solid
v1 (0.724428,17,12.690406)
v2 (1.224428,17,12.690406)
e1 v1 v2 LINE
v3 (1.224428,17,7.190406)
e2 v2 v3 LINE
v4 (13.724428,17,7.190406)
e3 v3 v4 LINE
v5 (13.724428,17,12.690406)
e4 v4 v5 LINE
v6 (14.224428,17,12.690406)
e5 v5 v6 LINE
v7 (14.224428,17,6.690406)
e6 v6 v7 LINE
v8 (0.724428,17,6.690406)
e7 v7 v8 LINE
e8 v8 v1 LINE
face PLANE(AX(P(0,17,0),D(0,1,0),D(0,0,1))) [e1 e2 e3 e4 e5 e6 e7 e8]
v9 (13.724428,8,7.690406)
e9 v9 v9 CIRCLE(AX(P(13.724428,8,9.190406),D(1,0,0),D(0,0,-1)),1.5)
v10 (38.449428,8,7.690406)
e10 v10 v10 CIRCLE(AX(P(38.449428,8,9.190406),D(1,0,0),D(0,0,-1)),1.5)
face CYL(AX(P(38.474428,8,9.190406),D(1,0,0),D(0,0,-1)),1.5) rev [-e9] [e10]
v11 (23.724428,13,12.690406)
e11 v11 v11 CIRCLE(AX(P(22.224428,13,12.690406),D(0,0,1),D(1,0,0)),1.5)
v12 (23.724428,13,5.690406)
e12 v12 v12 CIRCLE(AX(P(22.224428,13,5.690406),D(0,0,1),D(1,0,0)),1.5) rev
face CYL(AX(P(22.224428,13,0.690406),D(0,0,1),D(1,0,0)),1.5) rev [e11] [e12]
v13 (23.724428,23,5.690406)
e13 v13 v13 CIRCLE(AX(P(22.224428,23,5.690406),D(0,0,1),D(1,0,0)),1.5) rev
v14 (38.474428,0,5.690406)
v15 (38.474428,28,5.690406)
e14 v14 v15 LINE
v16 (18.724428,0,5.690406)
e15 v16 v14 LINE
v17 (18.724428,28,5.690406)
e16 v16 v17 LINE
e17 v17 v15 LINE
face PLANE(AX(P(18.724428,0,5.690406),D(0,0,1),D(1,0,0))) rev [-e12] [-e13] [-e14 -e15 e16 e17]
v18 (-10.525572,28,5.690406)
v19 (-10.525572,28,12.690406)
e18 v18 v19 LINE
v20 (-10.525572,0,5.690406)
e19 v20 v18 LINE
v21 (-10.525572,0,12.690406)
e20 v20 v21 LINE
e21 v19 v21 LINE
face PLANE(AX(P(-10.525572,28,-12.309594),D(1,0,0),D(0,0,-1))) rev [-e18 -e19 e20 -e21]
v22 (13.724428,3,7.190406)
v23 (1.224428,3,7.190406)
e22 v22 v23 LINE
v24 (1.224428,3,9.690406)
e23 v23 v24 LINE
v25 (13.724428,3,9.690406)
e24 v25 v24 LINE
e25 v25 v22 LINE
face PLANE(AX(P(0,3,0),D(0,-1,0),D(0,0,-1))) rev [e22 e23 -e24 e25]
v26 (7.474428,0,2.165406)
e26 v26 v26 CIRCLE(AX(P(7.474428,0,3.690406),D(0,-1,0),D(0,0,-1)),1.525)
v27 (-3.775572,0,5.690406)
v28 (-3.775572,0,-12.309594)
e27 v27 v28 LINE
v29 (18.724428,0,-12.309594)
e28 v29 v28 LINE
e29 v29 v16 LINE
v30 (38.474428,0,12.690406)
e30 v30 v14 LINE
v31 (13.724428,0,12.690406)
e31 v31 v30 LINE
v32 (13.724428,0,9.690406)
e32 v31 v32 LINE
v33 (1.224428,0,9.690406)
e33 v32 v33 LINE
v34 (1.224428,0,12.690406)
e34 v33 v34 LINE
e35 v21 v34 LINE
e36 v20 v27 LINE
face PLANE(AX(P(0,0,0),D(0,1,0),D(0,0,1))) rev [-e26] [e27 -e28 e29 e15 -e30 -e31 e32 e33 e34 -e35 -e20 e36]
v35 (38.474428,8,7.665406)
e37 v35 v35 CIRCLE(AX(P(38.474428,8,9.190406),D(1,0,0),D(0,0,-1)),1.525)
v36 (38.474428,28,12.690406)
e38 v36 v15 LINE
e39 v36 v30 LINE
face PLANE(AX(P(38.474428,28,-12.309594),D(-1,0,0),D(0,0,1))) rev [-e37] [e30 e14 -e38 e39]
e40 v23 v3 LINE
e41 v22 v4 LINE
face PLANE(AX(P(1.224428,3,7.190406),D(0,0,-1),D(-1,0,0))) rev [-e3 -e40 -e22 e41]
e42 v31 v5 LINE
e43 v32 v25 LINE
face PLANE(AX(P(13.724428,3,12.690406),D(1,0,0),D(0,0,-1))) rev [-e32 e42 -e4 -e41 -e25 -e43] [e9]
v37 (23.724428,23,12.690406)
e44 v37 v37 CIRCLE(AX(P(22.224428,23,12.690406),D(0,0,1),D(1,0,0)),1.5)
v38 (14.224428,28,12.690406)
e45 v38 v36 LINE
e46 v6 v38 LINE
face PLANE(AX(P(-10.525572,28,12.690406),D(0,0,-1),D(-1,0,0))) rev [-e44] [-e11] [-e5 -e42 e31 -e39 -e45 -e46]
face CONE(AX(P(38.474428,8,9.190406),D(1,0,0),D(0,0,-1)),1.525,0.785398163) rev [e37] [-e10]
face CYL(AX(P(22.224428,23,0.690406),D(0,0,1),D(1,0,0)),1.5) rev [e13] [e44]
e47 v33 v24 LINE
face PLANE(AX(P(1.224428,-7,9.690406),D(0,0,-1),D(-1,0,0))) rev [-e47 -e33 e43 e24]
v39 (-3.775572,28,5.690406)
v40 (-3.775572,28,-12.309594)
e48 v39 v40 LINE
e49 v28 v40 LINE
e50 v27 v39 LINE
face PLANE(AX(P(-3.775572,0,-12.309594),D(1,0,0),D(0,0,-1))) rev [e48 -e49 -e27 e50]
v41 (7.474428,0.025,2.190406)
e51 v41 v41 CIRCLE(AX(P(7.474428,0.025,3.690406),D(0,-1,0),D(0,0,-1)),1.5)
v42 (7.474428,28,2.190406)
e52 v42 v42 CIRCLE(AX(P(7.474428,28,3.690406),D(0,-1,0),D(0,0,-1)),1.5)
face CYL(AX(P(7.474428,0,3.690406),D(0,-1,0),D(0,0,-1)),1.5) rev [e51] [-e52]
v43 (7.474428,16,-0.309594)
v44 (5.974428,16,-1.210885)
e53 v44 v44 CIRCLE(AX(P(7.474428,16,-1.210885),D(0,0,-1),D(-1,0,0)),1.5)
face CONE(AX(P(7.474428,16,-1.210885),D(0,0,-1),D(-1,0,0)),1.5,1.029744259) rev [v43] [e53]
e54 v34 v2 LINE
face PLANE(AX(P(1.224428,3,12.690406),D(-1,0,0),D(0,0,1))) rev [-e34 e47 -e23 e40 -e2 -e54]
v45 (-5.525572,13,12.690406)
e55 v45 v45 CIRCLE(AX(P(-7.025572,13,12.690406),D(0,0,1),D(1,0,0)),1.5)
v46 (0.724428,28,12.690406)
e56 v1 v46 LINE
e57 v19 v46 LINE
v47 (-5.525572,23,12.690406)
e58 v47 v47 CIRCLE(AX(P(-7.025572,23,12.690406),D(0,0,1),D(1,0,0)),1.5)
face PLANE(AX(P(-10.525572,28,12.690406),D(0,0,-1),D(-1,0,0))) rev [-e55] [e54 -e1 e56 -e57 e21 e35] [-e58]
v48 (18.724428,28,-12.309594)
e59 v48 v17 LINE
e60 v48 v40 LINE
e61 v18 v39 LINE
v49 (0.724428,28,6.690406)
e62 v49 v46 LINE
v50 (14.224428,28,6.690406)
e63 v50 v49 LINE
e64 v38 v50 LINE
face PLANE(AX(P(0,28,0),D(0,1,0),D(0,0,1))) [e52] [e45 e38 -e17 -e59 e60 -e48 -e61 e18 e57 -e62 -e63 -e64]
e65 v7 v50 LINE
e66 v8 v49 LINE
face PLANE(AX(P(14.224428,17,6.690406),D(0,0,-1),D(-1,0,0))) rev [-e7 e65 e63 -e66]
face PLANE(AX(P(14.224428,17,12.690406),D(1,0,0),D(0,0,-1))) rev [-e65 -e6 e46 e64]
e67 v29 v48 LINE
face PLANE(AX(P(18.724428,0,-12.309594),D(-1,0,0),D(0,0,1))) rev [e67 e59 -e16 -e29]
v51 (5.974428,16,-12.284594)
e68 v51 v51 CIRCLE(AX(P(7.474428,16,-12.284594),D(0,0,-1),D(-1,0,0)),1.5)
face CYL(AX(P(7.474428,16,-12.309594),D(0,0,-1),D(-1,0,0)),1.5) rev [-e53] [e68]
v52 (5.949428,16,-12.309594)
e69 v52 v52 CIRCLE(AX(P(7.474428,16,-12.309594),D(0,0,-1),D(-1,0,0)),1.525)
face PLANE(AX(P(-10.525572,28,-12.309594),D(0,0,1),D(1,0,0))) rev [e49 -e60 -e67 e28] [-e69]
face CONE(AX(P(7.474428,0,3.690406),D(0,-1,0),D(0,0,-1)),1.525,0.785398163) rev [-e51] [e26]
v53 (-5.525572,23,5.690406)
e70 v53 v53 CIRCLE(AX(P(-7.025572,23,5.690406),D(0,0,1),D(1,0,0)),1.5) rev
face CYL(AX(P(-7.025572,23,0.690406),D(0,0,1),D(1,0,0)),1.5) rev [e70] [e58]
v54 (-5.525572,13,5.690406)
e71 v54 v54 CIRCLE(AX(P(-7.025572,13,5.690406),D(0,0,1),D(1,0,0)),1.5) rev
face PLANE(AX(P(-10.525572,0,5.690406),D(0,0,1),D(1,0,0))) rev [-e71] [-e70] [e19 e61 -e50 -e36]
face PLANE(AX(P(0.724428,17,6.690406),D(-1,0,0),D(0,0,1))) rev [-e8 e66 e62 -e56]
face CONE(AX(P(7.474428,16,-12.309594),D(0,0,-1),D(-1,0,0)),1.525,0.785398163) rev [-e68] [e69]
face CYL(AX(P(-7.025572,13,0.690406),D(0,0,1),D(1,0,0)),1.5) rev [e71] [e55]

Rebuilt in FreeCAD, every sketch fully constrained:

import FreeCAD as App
import Part
import Sketcher
from FreeCAD import Vector
Q = App.Units.Quantity


def add_polygon(sketch, points):
    """Adds a closed chain of lines whose ends are joined by coincident constraints."""
    first, n = sketch.GeometryCount, len(points)
    for a, b in zip(points, points[1:] + points[:1]):
        sketch.addGeometry(Part.LineSegment(App.Vector(*a, 0), App.Vector(*b, 0)), False)
    for i in range(n):
        sketch.addConstraint(Sketcher.Constraint("Coincident", first + i, 2, first + (i + 1) % n, 1))

doc = App.newDocument("Part")
params = doc.addObject("Spreadsheet::Sheet", "Params")
for row, (alias, value) in enumerate([
    ("sketch1_width", "49 mm"),
    ("sketch1_height", "25 mm"),
    ("pad1_length", "28 mm"),
    ("sketch2_width", "12.5 mm"),
    ("sketch2_height", "5.5 mm"),
    ("pocket1_length", "25 mm"),
    ("sketch3_diameter", "3 mm"),
    ("hole_diameter", "3 mm"),
    ("hole_depth", "11.098709 mm"),
    ("hole_csink_diameter", "3.05 mm"),
    ("sketch4_diameter", "3 mm"),
    ("hole2_diameter", "3 mm"),
    ("hole2_depth", "24.75 mm"),
    ("hole2_csink_diameter", "3.05 mm"),
    ("sketch5_diameter", "3 mm"),
    ("hole3_diameter", "3 mm"),
    ("hole3_csink_diameter", "3.05 mm"),
    ("sketch6_diameter", "3 mm"),
    ("pocket2_length", "12 mm"),
    ("sketch7_height", "18 mm"),
    ("sketch7_width", "6.75 mm"),
    ("sketch7_width2", "19.75 mm"),
    ("pocket3_length", "28 mm"),
    ("sketch8_height", "3 mm"),
    ("sketch8_width", "12.5 mm"),
    ("pocket4_length", "10 mm"),
    ("sketch9_height", "6 mm"),
    ("sketch9_width", "13.5 mm"),
    ("sketch9_width2", "0.5 mm"),
    ("sketch9_height2", "5.5 mm"),
    ("pocket5_length", "11 mm"),
], start=1):
    params.set(f"A{row}", alias)
    params.set(f"B{row}", "=" + value)
    params.setAlias(f"B{row}", alias)

body = doc.addObject("PartDesign::Body", "Body")

# Sketch on XZ plane
sketch1 = doc.addObject("Sketcher::SketchObject", "Sketch")
body.addObject(sketch1)
sketch1.AttachmentSupport = (doc.XZ_Plane, [""])
sketch1.MapMode = "FlatFace"
add_polygon(sketch1, [(-10.525572, -12.309594), (-10.525572, 12.690406), (38.474428, 12.690406), (38.474428, -12.309594)])  # lines 0-3
sketch1.addConstraint([
    Sketcher.Constraint("Vertical", 0),
    Sketcher.Constraint("Horizontal", 1),
    Sketcher.Constraint("Vertical", 2),
    Sketcher.Constraint("Horizontal", 3),
    Sketcher.Constraint("DistanceX", 1, 1, 1, 2, Q("49 mm")),
    Sketcher.Constraint("DistanceY", 0, 1, 0, 2, Q("25 mm")),
    Sketcher.Constraint("DistanceX", 0, 2, -1, 1, Q("10.525572 mm")),
    Sketcher.Constraint("DistanceY", -1, 1, 0, 2, Q("12.690406 mm")),
])
sketch1.setExpression("Constraints[8]", "Params.sketch1_width")
sketch1.setExpression("Constraints[9]", "Params.sketch1_height")
pad1 = doc.addObject("PartDesign::Pad", "Pad")
body.addObject(pad1)
pad1.Profile = sketch1
pad1.setExpression("Length", "Params.pad1_length")
pad1.Reversed = True

# Sketch on XZ plane
sketch2 = doc.addObject("Sketcher::SketchObject", "Sketch001")
body.addObject(sketch2)
sketch2.AttachmentSupport = (doc.XZ_Plane, [""])
sketch2.MapMode = "FlatFace"
sketch2.AttachmentOffset = App.Placement(Vector(0, 0, -28), App.Rotation())
add_polygon(sketch2, [(1.224428, 7.190406), (1.224428, 12.690406), (13.724428, 12.690406), (13.724428, 7.190406)])  # lines 0-3
sketch2.addConstraint([
    Sketcher.Constraint("Vertical", 0),
    Sketcher.Constraint("Horizontal", 1),
    Sketcher.Constraint("Vertical", 2),
    Sketcher.Constraint("Horizontal", 3),
    Sketcher.Constraint("DistanceX", 1, 1, 1, 2, Q("12.5 mm")),
    Sketcher.Constraint("DistanceY", 0, 1, 0, 2, Q("5.5 mm")),
    Sketcher.Constraint("DistanceX", -1, 1, 0, 2, Q("1.224428 mm")),
    Sketcher.Constraint("DistanceY", -1, 1, 0, 2, Q("12.690406 mm")),
])
sketch2.setExpression("Constraints[8]", "Params.sketch2_width")
sketch2.setExpression("Constraints[9]", "Params.sketch2_height")
pocket1 = doc.addObject("PartDesign::Pocket", "Pocket")
body.addObject(pocket1)
pocket1.Profile = sketch2
pocket1.setExpression("Length", "Params.pocket1_length")
pocket1.Reversed = True

# Sketch on XY plane
sketch3 = doc.addObject("Sketcher::SketchObject", "Sketch002")
body.addObject(sketch3)
sketch3.AttachmentSupport = (doc.XY_Plane, [""])
sketch3.MapMode = "FlatFace"
sketch3.AttachmentOffset = App.Placement(Vector(0, 0, -12.309594), App.Rotation())
sketch3.addGeometry(Part.Circle(Vector(7.474428, 16, 0), Vector(0, 0, 1), 1.5), False)
sketch3.addConstraint([
    Sketcher.Constraint("Diameter", 0, Q("3 mm")),
    Sketcher.Constraint("DistanceY", -1, 1, 0, 3, Q("16 mm")),
    Sketcher.Constraint("DistanceX", -1, 1, 0, 3, Q("7.474428 mm")),
])
sketch3.setExpression("Constraints[0]", "Params.sketch3_diameter")
doc.recompute()
hole = doc.addObject("PartDesign::Hole", "Hole")
body.addObject(hole)
hole.Profile = sketch3
hole.ThreadType = "None"
hole.setExpression("Diameter", "Params.hole_diameter")
hole.DepthType = "Dimension"
hole.setExpression("Depth", "Params.hole_depth")
hole.DrillPoint = "Angled"
hole.DrillPointAngle = 118
hole.HoleCutType = "Countersink"
hole.setExpression("HoleCutDiameter", "Params.hole_csink_diameter")
hole.HoleCutCountersinkAngle = 90
hole.Reversed = True

# Sketch on YZ plane
sketch4 = doc.addObject("Sketcher::SketchObject", "Sketch003")
body.addObject(sketch4)
sketch4.AttachmentSupport = (doc.YZ_Plane, [""])
sketch4.MapMode = "FlatFace"
sketch4.AttachmentOffset = App.Placement(Vector(0, 0, 38.474428), App.Rotation())
sketch4.addGeometry(Part.Circle(Vector(8, 9.190406, 0), Vector(0, 0, 1), 1.5), False)
sketch4.addConstraint([
    Sketcher.Constraint("Diameter", 0, Q("3 mm")),
    Sketcher.Constraint("DistanceX", -1, 1, 0, 3, Q("8 mm")),
    Sketcher.Constraint("DistanceY", -1, 1, 0, 3, Q("9.190406 mm")),
])
sketch4.setExpression("Constraints[0]", "Params.sketch4_diameter")
doc.recompute()
hole2 = doc.addObject("PartDesign::Hole", "Hole001")
body.addObject(hole2)
hole2.Profile = sketch4
hole2.ThreadType = "None"
hole2.setExpression("Diameter", "Params.hole2_diameter")
hole2.DepthType = "Dimension"
hole2.setExpression("Depth", "Params.hole2_depth")
hole2.DrillPoint = "Flat"
hole2.HoleCutType = "Countersink"
hole2.setExpression("HoleCutDiameter", "Params.hole2_csink_diameter")
hole2.HoleCutCountersinkAngle = 90

# Sketch on XZ plane
sketch5 = doc.addObject("Sketcher::SketchObject", "Sketch004")
body.addObject(sketch5)
sketch5.AttachmentSupport = (doc.XZ_Plane, [""])
sketch5.MapMode = "FlatFace"
sketch5.addGeometry(Part.Circle(Vector(7.474428, 3.690406, 0), Vector(0, 0, 1), 1.5), False)
sketch5.addConstraint([
    Sketcher.Constraint("Diameter", 0, Q("3 mm")),
    Sketcher.Constraint("DistanceX", -1, 1, 0, 3, Q("7.474428 mm")),
    Sketcher.Constraint("DistanceY", -1, 1, 0, 3, Q("3.690406 mm")),
])
sketch5.setExpression("Constraints[0]", "Params.sketch5_diameter")
doc.recompute()
hole3 = doc.addObject("PartDesign::Hole", "Hole002")
body.addObject(hole3)
hole3.Profile = sketch5
hole3.ThreadType = "None"
hole3.setExpression("Diameter", "Params.hole3_diameter")
hole3.DepthType = "ThroughAll"
hole3.HoleCutType = "Countersink"
hole3.setExpression("HoleCutDiameter", "Params.hole3_csink_diameter")
hole3.HoleCutCountersinkAngle = 90

# Sketch on XY plane
sketch6 = doc.addObject("Sketcher::SketchObject", "Sketch005")
body.addObject(sketch6)
sketch6.AttachmentSupport = (doc.XY_Plane, [""])
sketch6.MapMode = "FlatFace"
sketch6.AttachmentOffset = App.Placement(Vector(0, 0, 12.690406), App.Rotation())
sketch6.addGeometry([
    Part.Circle(Vector(-7.025572, 23, 0), Vector(0, 0, 1), 1.5),
    Part.Circle(Vector(-7.025572, 13, 0), Vector(0, 0, 1), 1.5),
    Part.Circle(Vector(22.224428, 23, 0), Vector(0, 0, 1), 1.5),
    Part.Circle(Vector(22.224428, 13, 0), Vector(0, 0, 1), 1.5),
], False)
sketch6.addConstraint([
    Sketcher.Constraint("Equal", 0, 1),
    Sketcher.Constraint("Equal", 1, 2),
    Sketcher.Constraint("Equal", 2, 3),
    Sketcher.Constraint("Horizontal", 0, 3, 2, 3),
    Sketcher.Constraint("Horizontal", 1, 3, 3, 3),
    Sketcher.Constraint("Vertical", 0, 3, 1, 3),
    Sketcher.Constraint("Vertical", 2, 3, 3, 3),
    Sketcher.Constraint("Diameter", 0, Q("3 mm")),
    Sketcher.Constraint("DistanceY", -1, 1, 0, 3, Q("23 mm")),
    Sketcher.Constraint("DistanceY", -1, 1, 1, 3, Q("13 mm")),
    Sketcher.Constraint("DistanceX", 0, 3, 2, 3, Q("29.25 mm")),
    Sketcher.Constraint("DistanceX", 0, 3, -1, 1, Q("7.025572 mm")),
])
sketch6.setExpression("Constraints[7]", "Params.sketch6_diameter")
pocket2 = doc.addObject("PartDesign::Pocket", "Pocket001")
body.addObject(pocket2)
pocket2.Profile = sketch6
pocket2.setExpression("Length", "Params.pocket2_length")

# Sketch on XZ plane
sketch7 = doc.addObject("Sketcher::SketchObject", "Sketch006")
body.addObject(sketch7)
sketch7.AttachmentSupport = (doc.XZ_Plane, [""])
sketch7.MapMode = "FlatFace"
sketch7.AttachmentOffset = App.Placement(Vector(0, 0, -28), App.Rotation())
add_polygon(sketch7, [(-10.525572, -12.309594), (-10.525572, 5.690406), (-3.775572, 5.690406), (-3.775572, -12.309594)])  # lines 0-3
add_polygon(sketch7, [(18.724428, -12.309594), (18.724428, 5.690406), (38.474428, 5.690406), (38.474428, -12.309594)])  # lines 4-7
sketch7.addConstraint([
    Sketcher.Constraint("Vertical", 0),
    Sketcher.Constraint("Horizontal", 1),
    Sketcher.Constraint("Vertical", 2),
    Sketcher.Constraint("Horizontal", 3),
    Sketcher.Constraint("Vertical", 4),
    Sketcher.Constraint("Horizontal", 5),
    Sketcher.Constraint("Vertical", 6),
    Sketcher.Constraint("Horizontal", 7),
    Sketcher.Constraint("Horizontal", 1, 2, 4, 2),
    Sketcher.Constraint("Horizontal", 3, 2, 6, 2),
    Sketcher.Constraint("DistanceY", 0, 1, 0, 2, Q("18 mm")),
    Sketcher.Constraint("DistanceX", 0, 2, 5, 2, Q("49 mm")),
    Sketcher.Constraint("DistanceX", 1, 1, 1, 2, Q("6.75 mm")),
    Sketcher.Constraint("DistanceX", 5, 1, 5, 2, Q("19.75 mm")),
    Sketcher.Constraint("DistanceX", 0, 2, -1, 1, Q("10.525572 mm")),
    Sketcher.Constraint("DistanceY", -1, 1, 0, 2, Q("5.690406 mm")),
])
sketch7.setExpression("Constraints[18]", "Params.sketch7_height")
sketch7.setExpression("Constraints[20]", "Params.sketch7_width")
sketch7.setExpression("Constraints[21]", "Params.sketch7_width2")
pocket3 = doc.addObject("PartDesign::Pocket", "Pocket002")
body.addObject(pocket3)
pocket3.Profile = sketch7
pocket3.setExpression("Length", "Params.pocket3_length")
pocket3.Reversed = True

# Sketch on XZ plane
sketch8 = doc.addObject("Sketcher::SketchObject", "Sketch007")
body.addObject(sketch8)
sketch8.AttachmentSupport = (doc.XZ_Plane, [""])
sketch8.MapMode = "FlatFace"
sketch8.AttachmentOffset = App.Placement(Vector(0, 0, -3), App.Rotation())
add_polygon(sketch8, [(1.224428, 9.690406), (1.224428, 12.690406), (13.724428, 12.690406), (13.724428, 9.690406)])  # lines 0-3
sketch8.addConstraint([
    Sketcher.Constraint("Vertical", 0),
    Sketcher.Constraint("Horizontal", 1),
    Sketcher.Constraint("Vertical", 2),
    Sketcher.Constraint("Horizontal", 3),
    Sketcher.Constraint("DistanceY", 0, 1, 0, 2, Q("3 mm")),
    Sketcher.Constraint("DistanceX", 1, 1, 1, 2, Q("12.5 mm")),
    Sketcher.Constraint("DistanceX", -1, 1, 0, 2, Q("1.224428 mm")),
    Sketcher.Constraint("DistanceY", -1, 1, 0, 2, Q("12.690406 mm")),
])
sketch8.setExpression("Constraints[8]", "Params.sketch8_height")
sketch8.setExpression("Constraints[9]", "Params.sketch8_width")
pocket4 = doc.addObject("PartDesign::Pocket", "Pocket003")
body.addObject(pocket4)
pocket4.Profile = sketch8
pocket4.setExpression("Length", "Params.pocket4_length")
pocket4.Reversed = True

# Sketch on XZ plane
sketch9 = doc.addObject("Sketcher::SketchObject", "Sketch008")
body.addObject(sketch9)
sketch9.AttachmentSupport = (doc.XZ_Plane, [""])
sketch9.MapMode = "FlatFace"
sketch9.AttachmentOffset = App.Placement(Vector(0, 0, -28), App.Rotation())
add_polygon(sketch9, [(14.224428, 12.690406), (14.224428, 6.690406), (0.724428, 6.690406), (0.724428, 12.690406), (1.224428, 12.690406), (1.224428, 7.190406), (13.724428, 7.190406), (13.724428, 12.690406)])  # lines 0-7
sketch9.addConstraint([
    Sketcher.Constraint("Vertical", 0),
    Sketcher.Constraint("Horizontal", 1),
    Sketcher.Constraint("Vertical", 2),
    Sketcher.Constraint("Horizontal", 3),
    Sketcher.Constraint("Vertical", 4),
    Sketcher.Constraint("Horizontal", 5),
    Sketcher.Constraint("Vertical", 6),
    Sketcher.Constraint("Horizontal", 7),
    Sketcher.Constraint("Horizontal", 3, 2, 6, 2),
    Sketcher.Constraint("Equal", 3, 7),
    Sketcher.Constraint("DistanceY", 0, 2, 0, 1, Q("6 mm")),
    Sketcher.Constraint("DistanceX", 1, 2, 1, 1, Q("13.5 mm")),
    Sketcher.Constraint("DistanceX", 3, 1, 3, 2, Q("0.5 mm")),
    Sketcher.Constraint("DistanceY", 4, 2, 4, 1, Q("5.5 mm")),
    Sketcher.Constraint("DistanceX", -1, 1, 0, 2, Q("14.224428 mm")),
    Sketcher.Constraint("DistanceY", -1, 1, 0, 2, Q("6.690406 mm")),
])
sketch9.setExpression("Constraints[18]", "Params.sketch9_height")
sketch9.setExpression("Constraints[19]", "Params.sketch9_width")
sketch9.setExpression("Constraints[20]", "Params.sketch9_width2")
sketch9.setExpression("Constraints[21]", "Params.sketch9_height2")
pocket5 = doc.addObject("PartDesign::Pocket", "Pocket004")
body.addObject(pocket5)
pocket5.Profile = sketch9
pocket5.setExpression("Length", "Params.pocket5_length")
pocket5.Reversed = True

doc.recompute()
